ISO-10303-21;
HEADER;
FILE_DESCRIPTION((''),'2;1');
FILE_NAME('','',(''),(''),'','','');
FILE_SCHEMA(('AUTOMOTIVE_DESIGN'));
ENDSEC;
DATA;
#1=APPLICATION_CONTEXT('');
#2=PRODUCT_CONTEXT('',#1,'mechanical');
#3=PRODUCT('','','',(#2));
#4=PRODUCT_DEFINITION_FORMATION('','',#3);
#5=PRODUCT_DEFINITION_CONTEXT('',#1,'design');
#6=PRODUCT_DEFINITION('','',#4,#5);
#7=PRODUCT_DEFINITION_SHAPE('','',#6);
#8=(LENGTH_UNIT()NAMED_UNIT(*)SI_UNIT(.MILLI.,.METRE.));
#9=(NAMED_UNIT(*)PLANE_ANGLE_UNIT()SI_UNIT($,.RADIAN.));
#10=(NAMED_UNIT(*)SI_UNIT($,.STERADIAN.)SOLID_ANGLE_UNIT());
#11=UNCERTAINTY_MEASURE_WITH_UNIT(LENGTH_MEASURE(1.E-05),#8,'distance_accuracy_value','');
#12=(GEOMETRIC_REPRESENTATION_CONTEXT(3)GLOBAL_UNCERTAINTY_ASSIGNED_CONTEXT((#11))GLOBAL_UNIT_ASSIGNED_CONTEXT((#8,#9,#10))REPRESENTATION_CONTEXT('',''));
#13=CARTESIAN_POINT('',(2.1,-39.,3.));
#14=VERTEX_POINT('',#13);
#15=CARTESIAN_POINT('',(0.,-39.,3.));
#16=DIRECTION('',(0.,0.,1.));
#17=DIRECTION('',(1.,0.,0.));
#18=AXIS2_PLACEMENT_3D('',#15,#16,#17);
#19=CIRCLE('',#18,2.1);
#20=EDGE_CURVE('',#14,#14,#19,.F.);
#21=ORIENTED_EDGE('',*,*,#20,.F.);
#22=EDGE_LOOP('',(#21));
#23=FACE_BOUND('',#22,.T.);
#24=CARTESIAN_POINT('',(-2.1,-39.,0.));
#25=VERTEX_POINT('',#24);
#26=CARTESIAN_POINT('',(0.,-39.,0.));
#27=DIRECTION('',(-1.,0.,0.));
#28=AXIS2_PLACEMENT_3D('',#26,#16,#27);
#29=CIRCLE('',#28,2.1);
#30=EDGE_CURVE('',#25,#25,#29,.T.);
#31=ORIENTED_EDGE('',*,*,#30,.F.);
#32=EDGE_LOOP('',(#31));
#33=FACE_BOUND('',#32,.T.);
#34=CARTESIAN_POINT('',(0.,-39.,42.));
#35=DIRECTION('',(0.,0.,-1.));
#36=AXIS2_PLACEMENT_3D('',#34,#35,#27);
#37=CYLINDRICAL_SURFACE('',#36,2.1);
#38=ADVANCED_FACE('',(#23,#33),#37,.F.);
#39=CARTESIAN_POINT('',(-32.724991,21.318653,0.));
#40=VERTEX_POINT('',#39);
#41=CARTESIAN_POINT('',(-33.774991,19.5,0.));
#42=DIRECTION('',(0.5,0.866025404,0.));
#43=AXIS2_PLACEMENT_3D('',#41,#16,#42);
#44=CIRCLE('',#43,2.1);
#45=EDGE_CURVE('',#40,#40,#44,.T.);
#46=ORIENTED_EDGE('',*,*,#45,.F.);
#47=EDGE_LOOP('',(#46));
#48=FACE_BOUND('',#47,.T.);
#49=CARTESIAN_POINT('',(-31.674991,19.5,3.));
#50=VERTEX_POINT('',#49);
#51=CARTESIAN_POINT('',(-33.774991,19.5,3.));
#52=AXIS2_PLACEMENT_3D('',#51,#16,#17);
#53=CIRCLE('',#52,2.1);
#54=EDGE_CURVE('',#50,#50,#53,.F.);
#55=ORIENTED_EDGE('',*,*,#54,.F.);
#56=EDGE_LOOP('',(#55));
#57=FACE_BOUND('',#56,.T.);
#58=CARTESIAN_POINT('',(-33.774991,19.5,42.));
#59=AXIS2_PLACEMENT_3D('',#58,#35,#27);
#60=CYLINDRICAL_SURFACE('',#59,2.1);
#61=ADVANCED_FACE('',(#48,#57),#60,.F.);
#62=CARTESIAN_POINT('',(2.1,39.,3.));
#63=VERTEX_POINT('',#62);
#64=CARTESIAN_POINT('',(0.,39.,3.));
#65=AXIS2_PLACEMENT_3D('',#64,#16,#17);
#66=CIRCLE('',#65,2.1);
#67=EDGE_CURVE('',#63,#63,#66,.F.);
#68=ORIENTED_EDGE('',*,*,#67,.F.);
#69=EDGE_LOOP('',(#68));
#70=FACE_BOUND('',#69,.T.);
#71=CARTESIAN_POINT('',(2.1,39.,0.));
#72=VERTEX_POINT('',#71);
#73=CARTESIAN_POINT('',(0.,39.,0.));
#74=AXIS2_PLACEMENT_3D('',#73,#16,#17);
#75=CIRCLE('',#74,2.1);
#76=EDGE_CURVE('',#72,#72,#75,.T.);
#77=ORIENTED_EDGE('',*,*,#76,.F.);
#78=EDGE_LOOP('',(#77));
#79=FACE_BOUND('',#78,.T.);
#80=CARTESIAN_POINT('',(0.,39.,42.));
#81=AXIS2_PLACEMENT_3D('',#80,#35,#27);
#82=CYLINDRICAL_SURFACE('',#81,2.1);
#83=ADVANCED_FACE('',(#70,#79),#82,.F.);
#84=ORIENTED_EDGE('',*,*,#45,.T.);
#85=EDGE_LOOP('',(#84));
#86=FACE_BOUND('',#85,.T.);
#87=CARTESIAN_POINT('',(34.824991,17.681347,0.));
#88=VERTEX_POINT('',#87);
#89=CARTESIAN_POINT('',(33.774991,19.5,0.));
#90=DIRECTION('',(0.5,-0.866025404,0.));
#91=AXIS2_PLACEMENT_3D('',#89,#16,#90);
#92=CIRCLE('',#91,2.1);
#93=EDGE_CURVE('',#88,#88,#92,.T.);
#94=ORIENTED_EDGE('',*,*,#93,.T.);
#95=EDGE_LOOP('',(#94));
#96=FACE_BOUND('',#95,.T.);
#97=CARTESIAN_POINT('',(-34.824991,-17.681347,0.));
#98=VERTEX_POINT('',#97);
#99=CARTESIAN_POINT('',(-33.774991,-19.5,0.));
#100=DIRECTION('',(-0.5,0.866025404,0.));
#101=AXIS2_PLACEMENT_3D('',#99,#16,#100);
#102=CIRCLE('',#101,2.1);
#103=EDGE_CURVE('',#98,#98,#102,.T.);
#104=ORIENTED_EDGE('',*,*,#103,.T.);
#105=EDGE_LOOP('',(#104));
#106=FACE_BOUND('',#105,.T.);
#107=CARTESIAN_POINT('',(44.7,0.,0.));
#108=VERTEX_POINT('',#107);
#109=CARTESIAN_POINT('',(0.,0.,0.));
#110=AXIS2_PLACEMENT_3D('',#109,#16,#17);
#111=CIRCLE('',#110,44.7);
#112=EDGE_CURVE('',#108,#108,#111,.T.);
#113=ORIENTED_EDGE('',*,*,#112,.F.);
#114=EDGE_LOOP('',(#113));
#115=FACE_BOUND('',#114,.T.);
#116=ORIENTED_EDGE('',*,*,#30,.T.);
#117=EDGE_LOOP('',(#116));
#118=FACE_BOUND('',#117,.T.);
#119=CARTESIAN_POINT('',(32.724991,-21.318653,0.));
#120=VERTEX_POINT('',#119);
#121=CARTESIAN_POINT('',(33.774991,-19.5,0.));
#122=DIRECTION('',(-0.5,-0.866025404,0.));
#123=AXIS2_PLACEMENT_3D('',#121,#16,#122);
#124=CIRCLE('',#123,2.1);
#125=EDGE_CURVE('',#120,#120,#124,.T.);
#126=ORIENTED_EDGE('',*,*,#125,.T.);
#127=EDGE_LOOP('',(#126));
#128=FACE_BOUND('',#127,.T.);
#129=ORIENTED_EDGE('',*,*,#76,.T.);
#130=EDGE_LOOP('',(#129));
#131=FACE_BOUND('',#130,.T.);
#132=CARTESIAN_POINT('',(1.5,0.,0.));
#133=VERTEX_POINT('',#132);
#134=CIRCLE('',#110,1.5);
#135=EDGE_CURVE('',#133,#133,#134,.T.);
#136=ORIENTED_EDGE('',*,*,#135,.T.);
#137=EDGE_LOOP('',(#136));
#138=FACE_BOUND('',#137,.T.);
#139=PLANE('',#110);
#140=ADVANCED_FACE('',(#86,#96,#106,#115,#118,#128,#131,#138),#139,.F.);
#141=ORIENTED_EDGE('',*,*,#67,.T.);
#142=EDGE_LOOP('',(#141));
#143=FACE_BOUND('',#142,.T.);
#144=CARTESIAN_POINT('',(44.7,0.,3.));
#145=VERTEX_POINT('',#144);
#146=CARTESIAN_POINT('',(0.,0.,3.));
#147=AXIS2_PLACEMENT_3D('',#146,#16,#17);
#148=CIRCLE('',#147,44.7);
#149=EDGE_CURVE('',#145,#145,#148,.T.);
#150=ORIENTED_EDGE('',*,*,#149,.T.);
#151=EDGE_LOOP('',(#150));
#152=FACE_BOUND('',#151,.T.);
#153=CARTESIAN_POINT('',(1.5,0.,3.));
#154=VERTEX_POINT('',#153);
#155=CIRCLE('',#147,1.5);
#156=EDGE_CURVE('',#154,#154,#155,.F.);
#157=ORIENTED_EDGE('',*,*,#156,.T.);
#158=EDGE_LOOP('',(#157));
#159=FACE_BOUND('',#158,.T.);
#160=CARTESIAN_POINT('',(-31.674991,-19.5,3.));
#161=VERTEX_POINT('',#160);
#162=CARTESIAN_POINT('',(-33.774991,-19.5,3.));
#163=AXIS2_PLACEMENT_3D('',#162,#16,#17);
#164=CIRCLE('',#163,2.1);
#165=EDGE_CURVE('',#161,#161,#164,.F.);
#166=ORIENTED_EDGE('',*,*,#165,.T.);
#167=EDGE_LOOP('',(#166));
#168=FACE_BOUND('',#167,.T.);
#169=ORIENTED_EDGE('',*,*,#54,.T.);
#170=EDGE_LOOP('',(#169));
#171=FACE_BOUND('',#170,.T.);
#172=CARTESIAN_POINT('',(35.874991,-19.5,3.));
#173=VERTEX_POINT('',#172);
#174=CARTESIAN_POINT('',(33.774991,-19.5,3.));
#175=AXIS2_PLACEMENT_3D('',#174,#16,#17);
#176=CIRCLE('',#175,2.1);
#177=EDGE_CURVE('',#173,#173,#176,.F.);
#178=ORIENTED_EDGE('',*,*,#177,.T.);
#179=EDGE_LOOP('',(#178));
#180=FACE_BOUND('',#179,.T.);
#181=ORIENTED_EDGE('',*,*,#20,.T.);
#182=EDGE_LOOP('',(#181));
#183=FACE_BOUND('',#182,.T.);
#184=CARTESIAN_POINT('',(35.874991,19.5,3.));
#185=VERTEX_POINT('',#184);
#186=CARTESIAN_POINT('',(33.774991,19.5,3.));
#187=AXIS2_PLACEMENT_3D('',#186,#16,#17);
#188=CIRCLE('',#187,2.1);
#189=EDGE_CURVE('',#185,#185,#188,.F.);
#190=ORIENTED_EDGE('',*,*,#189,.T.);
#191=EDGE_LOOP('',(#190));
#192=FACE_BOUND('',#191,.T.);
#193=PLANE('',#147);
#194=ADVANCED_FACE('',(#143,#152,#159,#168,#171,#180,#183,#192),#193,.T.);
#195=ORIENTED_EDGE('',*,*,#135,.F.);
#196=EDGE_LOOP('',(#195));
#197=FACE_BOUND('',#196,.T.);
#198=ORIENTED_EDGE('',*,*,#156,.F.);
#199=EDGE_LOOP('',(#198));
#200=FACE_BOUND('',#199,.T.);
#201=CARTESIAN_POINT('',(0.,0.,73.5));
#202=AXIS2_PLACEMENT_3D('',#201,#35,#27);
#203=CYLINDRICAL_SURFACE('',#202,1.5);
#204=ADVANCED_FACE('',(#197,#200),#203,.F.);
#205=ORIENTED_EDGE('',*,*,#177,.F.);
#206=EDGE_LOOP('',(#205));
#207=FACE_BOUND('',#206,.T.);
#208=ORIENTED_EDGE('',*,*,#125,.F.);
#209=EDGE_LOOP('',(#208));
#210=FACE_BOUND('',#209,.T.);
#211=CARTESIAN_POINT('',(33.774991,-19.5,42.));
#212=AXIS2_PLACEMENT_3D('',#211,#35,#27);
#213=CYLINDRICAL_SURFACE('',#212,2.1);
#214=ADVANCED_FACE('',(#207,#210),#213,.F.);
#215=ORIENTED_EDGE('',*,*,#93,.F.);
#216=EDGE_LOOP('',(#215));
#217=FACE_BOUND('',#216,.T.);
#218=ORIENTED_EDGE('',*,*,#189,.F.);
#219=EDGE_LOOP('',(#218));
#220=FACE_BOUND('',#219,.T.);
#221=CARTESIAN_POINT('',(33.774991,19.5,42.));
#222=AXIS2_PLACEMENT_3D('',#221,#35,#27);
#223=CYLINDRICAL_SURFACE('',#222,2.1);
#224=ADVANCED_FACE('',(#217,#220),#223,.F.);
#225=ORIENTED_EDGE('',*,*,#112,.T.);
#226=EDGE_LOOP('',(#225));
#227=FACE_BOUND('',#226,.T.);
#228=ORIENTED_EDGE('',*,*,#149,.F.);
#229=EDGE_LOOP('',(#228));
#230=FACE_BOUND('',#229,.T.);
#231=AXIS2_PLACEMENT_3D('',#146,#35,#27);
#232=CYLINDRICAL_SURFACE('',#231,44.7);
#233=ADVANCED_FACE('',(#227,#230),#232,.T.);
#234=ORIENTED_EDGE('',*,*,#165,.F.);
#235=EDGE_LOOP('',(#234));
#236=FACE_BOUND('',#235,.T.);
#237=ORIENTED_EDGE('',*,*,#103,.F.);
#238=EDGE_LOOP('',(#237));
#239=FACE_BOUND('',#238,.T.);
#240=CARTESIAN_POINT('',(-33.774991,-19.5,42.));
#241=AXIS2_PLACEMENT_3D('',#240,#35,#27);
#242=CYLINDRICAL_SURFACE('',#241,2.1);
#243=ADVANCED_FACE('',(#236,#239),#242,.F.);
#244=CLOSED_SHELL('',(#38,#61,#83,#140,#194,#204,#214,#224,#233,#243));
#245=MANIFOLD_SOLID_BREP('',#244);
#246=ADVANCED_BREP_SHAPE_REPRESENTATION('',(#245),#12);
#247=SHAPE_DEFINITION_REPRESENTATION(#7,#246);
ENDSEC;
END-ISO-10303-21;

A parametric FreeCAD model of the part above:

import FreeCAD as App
import Part
import Sketcher

V = App.Vector

doc = App.newDocument("Part")
body = doc.addObject("PartDesign::Body", "Body")

# Sketch on XY plane
sketch1 = body.newObject("Sketcher::SketchObject", "Sketch")
sketch1.AttachmentSupport = (doc.getObject("XY_Plane"), [""])
sketch1.MapMode = "FlatFace"
sketch1.addGeometry(Part.Circle(V(0, 0, 0), V(0, 0, 1), 44.7), False)
sketch1.addConstraint(Sketcher.Constraint("Coincident", 0, 3, -1, 1))
sketch1.addConstraint(Sketcher.Constraint("Diameter", 0, 89.4))
pad1 = body.newObject("PartDesign::Pad", "Pad")
pad1.Profile = sketch1
pad1.Length = 3

# Sketch on XY plane
sketch2 = body.newObject("Sketcher::SketchObject", "Sketch001")
sketch2.AttachmentSupport = (doc.getObject("XY_Plane"), [""])
sketch2.MapMode = "FlatFace"
sketch2.addGeometry(Part.Circle(V(0, 0, 0), V(0, 0, 1), 1.5), False)
sketch2.addConstraint(Sketcher.Constraint("Coincident", 0, 3, -1, 1))
sketch2.addConstraint(Sketcher.Constraint("Diameter", 0, 3.0))
pocket1 = body.newObject("PartDesign::Pocket", "Pocket")
pocket1.Profile = sketch2
pocket1.Length = 73.5
pocket1.Reversed = True

# Sketch on XY plane
sketch3 = body.newObject("Sketcher::SketchObject", "Sketch002")
sketch3.AttachmentSupport = (doc.getObject("XY_Plane"), [""])
sketch3.MapMode = "FlatFace"
sketch3.addGeometry(Part.Circle(V(0, 39, 0), V(0, 0, 1), 2.1), False)
sketch3.addConstraint(Sketcher.Constraint("PointOnObject", 0, 3, -2))
sketch3.addConstraint(Sketcher.Constraint("Diameter", 0, 4.2))
sketch3.addConstraint(Sketcher.Constraint("DistanceY", -1, 1, 0, 3, 39.0))
pocket2 = body.newObject("PartDesign::Pocket", "Pocket001")
pocket2.Profile = sketch3
pocket2.Length = 42
pocket2.Reversed = True
doc.recompute()

polarpattern = body.newObject("PartDesign::PolarPattern", "PolarPattern")
polarpattern.Originals = [pocket2]
polarpattern.Axis = (doc.getObject("Z_Axis"), [""])
polarpattern.Angle = 360
polarpattern.Occurrences = 6
body.Tip = polarpattern

doc.recompute()
